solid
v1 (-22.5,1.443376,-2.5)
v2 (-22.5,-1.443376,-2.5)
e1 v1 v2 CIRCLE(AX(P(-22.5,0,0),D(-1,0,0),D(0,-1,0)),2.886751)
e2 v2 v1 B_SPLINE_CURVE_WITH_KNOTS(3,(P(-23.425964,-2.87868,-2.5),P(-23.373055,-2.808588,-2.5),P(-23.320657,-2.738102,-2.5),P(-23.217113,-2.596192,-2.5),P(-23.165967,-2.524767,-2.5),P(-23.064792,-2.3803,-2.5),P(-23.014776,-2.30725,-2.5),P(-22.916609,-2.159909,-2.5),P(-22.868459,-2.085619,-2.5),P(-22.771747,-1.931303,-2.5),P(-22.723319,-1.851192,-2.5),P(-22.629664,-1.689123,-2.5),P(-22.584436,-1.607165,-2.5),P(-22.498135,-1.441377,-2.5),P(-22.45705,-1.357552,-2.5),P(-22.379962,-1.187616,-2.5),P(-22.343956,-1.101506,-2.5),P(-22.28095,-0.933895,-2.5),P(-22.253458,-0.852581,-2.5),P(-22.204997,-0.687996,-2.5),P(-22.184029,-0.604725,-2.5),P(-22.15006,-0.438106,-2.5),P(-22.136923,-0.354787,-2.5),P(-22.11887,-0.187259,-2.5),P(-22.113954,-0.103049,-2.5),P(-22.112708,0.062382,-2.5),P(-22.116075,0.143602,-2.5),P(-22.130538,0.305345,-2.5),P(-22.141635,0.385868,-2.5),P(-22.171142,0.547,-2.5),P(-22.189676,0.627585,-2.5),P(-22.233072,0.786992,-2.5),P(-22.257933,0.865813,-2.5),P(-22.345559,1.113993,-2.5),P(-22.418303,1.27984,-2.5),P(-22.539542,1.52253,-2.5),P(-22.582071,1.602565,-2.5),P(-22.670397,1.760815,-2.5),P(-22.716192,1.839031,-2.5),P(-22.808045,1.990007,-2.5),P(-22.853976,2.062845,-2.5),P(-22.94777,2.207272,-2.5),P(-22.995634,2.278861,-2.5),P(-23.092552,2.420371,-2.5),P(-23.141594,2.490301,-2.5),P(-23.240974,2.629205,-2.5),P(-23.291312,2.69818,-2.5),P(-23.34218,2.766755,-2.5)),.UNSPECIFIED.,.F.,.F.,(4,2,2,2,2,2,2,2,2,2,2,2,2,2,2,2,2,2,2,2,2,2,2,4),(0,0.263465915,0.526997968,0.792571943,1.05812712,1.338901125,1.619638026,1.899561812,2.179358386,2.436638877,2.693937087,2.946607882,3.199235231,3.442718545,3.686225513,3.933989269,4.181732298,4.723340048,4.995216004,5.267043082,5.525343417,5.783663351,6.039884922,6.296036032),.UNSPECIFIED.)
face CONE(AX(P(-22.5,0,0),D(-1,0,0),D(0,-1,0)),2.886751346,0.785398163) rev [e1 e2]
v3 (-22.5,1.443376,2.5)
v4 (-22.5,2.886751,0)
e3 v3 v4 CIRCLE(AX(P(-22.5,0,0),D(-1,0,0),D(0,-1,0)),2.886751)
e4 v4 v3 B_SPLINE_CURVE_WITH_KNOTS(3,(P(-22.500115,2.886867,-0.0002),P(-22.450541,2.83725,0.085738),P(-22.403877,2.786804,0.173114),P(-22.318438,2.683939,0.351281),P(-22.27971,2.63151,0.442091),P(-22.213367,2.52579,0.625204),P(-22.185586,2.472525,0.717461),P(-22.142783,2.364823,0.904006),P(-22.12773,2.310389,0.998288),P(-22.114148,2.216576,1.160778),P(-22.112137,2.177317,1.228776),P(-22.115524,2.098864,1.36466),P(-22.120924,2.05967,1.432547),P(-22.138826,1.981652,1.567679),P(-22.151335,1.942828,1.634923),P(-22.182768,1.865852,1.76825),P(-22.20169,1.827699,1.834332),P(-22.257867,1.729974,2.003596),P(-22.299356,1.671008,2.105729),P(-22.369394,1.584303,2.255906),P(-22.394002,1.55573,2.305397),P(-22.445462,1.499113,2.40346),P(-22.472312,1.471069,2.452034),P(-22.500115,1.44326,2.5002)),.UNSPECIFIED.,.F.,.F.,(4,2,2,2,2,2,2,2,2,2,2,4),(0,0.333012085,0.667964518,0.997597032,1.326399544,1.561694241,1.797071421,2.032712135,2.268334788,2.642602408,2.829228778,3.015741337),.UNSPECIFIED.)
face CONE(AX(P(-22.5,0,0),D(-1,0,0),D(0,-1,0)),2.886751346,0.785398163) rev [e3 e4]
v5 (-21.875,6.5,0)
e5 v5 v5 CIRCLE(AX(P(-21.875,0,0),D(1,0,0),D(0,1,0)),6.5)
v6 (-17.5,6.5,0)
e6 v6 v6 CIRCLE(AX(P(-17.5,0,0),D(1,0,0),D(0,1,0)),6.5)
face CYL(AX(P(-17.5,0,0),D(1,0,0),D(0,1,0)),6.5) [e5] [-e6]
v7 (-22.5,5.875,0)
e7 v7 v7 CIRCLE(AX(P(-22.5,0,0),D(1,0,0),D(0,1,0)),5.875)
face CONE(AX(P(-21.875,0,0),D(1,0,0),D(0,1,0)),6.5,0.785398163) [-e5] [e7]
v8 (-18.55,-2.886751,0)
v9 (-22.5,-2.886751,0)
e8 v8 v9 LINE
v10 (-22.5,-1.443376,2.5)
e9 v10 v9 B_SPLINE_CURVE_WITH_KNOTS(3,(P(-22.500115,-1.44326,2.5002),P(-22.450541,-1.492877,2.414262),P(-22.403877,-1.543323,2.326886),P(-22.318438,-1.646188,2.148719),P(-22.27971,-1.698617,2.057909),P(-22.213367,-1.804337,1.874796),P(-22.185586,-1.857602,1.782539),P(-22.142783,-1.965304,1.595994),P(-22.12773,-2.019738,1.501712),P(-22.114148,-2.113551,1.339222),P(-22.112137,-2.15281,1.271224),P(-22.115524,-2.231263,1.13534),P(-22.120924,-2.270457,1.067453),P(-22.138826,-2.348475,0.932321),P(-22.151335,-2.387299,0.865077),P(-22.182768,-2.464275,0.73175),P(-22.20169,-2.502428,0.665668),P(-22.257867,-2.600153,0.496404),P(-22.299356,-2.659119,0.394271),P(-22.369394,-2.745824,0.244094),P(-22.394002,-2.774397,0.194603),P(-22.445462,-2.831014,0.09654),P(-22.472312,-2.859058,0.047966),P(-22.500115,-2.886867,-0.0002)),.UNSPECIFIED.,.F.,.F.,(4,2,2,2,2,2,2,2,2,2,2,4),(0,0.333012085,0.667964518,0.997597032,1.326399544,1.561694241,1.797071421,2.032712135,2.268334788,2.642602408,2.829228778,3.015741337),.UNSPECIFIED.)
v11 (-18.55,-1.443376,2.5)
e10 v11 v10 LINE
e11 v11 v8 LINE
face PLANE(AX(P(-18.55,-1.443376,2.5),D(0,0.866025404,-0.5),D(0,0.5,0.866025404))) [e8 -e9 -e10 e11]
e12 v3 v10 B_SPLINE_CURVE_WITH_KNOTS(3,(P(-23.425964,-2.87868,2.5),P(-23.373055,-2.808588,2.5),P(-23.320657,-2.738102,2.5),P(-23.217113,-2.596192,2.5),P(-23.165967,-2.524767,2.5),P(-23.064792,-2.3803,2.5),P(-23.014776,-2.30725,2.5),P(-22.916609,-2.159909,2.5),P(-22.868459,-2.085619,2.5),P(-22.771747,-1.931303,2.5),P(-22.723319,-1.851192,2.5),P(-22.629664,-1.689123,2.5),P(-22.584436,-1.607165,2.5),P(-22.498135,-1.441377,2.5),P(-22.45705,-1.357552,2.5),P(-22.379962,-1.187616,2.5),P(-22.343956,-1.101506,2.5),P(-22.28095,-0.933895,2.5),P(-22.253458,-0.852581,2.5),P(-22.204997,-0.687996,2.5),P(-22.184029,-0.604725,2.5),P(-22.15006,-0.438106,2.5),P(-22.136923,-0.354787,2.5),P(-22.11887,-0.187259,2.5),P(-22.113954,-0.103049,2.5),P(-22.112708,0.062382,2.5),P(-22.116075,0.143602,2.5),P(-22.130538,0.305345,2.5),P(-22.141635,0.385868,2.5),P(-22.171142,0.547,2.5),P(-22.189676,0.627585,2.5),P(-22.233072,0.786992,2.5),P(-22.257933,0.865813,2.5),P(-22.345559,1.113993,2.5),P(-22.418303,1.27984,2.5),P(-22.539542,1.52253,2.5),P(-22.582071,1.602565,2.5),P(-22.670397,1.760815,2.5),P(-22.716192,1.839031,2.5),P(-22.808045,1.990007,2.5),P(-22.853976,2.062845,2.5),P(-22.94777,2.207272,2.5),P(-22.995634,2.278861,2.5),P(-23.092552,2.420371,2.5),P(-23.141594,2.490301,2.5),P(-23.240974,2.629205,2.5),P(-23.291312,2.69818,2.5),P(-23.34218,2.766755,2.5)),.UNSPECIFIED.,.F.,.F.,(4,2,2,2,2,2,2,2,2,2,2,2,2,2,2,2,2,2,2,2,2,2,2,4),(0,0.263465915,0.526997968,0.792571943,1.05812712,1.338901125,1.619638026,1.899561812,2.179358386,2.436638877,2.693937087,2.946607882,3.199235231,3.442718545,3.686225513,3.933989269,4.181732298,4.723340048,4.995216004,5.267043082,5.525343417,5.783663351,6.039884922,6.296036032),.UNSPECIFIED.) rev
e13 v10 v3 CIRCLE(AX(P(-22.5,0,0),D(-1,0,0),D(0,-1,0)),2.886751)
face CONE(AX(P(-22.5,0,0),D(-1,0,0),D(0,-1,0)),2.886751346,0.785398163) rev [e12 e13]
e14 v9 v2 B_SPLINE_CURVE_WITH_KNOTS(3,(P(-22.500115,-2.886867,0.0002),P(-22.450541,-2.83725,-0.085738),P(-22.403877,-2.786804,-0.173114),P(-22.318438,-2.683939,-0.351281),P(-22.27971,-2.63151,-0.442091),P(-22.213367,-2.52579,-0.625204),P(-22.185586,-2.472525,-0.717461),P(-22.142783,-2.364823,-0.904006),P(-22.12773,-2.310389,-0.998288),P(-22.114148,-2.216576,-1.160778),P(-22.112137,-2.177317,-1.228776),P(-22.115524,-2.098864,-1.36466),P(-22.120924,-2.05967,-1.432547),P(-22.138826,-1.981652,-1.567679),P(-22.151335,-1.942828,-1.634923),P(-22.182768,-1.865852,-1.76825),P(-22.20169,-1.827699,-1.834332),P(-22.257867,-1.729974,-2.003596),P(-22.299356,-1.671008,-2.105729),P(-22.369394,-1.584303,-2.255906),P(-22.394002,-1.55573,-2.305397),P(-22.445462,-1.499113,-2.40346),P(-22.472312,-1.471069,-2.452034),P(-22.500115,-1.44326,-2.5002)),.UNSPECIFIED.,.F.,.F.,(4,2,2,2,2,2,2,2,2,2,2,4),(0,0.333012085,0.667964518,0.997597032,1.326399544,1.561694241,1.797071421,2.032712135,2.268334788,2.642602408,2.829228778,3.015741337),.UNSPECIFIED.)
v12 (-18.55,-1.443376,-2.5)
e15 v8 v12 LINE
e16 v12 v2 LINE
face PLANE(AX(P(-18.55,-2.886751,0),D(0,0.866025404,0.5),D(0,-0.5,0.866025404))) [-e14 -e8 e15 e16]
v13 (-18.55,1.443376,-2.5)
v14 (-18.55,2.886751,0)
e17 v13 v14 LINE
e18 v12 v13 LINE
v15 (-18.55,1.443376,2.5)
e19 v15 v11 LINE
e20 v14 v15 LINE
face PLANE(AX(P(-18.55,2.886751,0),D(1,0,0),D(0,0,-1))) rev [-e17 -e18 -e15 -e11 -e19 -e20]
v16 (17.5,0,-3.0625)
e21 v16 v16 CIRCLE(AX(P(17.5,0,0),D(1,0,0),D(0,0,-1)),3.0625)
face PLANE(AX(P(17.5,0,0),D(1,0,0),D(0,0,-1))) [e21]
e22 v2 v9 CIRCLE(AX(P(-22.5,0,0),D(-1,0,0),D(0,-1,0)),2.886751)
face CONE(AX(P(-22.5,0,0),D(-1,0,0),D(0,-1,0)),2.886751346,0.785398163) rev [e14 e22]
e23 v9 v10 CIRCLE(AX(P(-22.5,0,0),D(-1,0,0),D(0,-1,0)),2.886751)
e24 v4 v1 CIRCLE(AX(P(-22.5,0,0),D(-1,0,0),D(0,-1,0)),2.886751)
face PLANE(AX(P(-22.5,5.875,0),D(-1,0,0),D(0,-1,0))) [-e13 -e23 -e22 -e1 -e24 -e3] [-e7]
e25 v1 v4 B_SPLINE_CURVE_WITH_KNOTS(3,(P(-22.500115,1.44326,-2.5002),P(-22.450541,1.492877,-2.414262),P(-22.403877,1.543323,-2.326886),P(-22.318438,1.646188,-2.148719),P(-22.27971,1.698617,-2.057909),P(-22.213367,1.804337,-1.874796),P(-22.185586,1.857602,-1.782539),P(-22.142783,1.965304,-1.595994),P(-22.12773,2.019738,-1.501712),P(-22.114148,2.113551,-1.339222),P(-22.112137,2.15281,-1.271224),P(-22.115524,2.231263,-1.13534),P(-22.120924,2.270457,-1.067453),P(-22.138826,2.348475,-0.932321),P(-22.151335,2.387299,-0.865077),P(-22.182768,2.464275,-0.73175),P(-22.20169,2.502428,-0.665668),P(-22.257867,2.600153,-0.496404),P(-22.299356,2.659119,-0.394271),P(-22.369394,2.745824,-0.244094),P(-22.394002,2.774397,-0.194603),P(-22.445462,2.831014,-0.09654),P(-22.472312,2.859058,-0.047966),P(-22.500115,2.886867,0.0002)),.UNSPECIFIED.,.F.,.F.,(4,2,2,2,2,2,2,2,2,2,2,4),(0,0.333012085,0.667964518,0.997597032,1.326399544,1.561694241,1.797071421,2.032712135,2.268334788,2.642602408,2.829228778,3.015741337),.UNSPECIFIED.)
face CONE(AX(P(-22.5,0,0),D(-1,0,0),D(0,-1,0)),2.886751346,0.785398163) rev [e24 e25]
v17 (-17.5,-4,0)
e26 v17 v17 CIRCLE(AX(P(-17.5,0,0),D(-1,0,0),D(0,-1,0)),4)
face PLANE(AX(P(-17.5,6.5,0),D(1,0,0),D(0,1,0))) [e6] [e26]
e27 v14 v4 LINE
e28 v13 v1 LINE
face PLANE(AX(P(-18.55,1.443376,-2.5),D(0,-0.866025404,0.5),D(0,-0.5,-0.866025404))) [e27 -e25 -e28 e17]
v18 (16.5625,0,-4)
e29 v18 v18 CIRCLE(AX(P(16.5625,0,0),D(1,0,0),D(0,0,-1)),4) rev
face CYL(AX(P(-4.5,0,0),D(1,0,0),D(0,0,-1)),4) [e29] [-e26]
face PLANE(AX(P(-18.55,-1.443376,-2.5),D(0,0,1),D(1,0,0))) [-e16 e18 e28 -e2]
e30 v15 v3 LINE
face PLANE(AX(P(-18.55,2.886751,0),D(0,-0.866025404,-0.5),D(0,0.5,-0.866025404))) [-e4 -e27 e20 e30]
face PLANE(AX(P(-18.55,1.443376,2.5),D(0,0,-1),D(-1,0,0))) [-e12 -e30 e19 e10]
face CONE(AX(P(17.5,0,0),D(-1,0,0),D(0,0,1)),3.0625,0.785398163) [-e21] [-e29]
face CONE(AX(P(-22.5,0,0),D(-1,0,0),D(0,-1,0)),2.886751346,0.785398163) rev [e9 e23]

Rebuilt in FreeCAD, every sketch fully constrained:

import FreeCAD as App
import Part
import Sketcher

V = App.Vector
Q = App.Units.Quantity


def edges_at(feature, points):
    """Names of the edges that pass closest to the given points."""
    edges = feature.Shape.Edges
    near = lambda p: min(range(len(edges)), key=lambda i: edges[i].distToShape(Part.Vertex(*p))[0])
    return sorted({f"Edge{near(p) + 1}" for p in points})

doc = App.newDocument("Part")
params = doc.addObject("Spreadsheet::Sheet", "Params")
for row, (alias, value) in enumerate([
    ("sketch1_diameter", "8 mm"),
    ("pad1_length", "22 mm"),
    ("chamfer_size", "0.9375 mm"),
    ("sketch2_width", "13 mm"),
    ("sketch2_height", "4 mm"),
    ("revolution_angle", "360 deg"),
    ("sketch3_width", "5 mm"),
    ("sketch3_height", "6.5 mm"),
    ("revolution2_angle", "360 deg"),
    ("pocket1_length", "3.95 mm"),
    ("groove_angle", "360 deg"),
], start=1):
    params.set(f"A{row}", alias)
    params.set(f"B{row}", "=" + value)
    params.setAlias(f"B{row}", alias)

body = doc.addObject("PartDesign::Body", "Body")

sketch1 = body.newObject("Sketcher::SketchObject", "Sketch")
sketch1.AttachmentSupport = (doc.getObject("YZ_Plane"), [""])
sketch1.MapMode = "FlatFace"
sketch1.AttachmentOffset = App.Placement(V(0, 0, 17.5), App.Rotation())
sketch1.addGeometry(Part.Circle(V(0, 0, 0), V(0, 0, 1), 4), False)
sketch1.addConstraint([
    Sketcher.Constraint("Coincident", 0, 3, -1, 1),
    Sketcher.Constraint("Diameter", 0, Q("8 mm")),
])
sketch1.setExpression("Constraints[1]", "Params.sketch1_diameter")
pad1 = body.newObject("PartDesign::Pad", "Pad")
pad1.Profile = sketch1
pad1.setExpression("Length", "Params.pad1_length")
pad1.Reversed = True
doc.recompute()

chamfer = body.newObject("PartDesign::Chamfer", "Chamfer")
chamfer.Base = (pad1, edges_at(pad1, [(17.5, 0, 4)]))
chamfer.setExpression("Size", "Params.chamfer_size")

sketch2 = body.newObject("Sketcher::SketchObject", "Sketch001")
sketch2.AttachmentSupport = (doc.getObject("XY_Plane"), [""])
sketch2.MapMode = "FlatFace"
sketch2.addGeometry([
    Part.LineSegment(V(-2.190599, 0, 0), V(-4.5, 4, 0)),
    Part.LineSegment(V(-4.5, 4, 0), V(-17.5, 4, 0)),
    Part.LineSegment(V(-17.5, 4, 0), V(-17.5, 0, 0)),
    Part.LineSegment(V(-17.5, 0, 0), V(-2.190599, 0, 0)),
], False)
sketch2.addConstraint([
    Sketcher.Constraint("Coincident", 0, 2, 1, 1),
    Sketcher.Constraint("Coincident", 1, 2, 2, 1),
    Sketcher.Constraint("Coincident", 2, 2, 3, 1),
    Sketcher.Constraint("Coincident", 3, 2, 0, 1),
    Sketcher.Constraint("Horizontal", 1),
    Sketcher.Constraint("Vertical", 2),
    Sketcher.Constraint("Horizontal", 3),
    Sketcher.Constraint("PointOnObject", 2, 2, -1),
    Sketcher.Constraint("DistanceX", 1, 2, 1, 1, Q("13 mm")),
    Sketcher.Constraint("DistanceY", 2, 2, 2, 1, Q("4 mm")),
    Sketcher.Constraint("Angle", 0, Q("120 deg")),
    Sketcher.Constraint("DistanceX", 0, 2, -1, 1, Q("4.5 mm")),
])
sketch2.setExpression("Constraints[8]", "Params.sketch2_width")
sketch2.setExpression("Constraints[9]", "Params.sketch2_height")
revolution = body.newObject("PartDesign::Revolution", "Revolution")
revolution.Profile = sketch2
revolution.ReferenceAxis = (sketch2, ["H_Axis"])
revolution.setExpression("Angle", "Params.revolution_angle")

sketch3 = body.newObject("Sketcher::SketchObject", "Sketch002")
sketch3.AttachmentSupport = (doc.getObject("XY_Plane"), [""])
sketch3.MapMode = "FlatFace"
sketch3.addGeometry([
    Part.LineSegment(V(-21.875, 6.5, 0), V(-22.5, 5.875, 0)),
    Part.LineSegment(V(-22.5, 5.875, 0), V(-22.5, 0, 0)),
    Part.LineSegment(V(-22.5, 0, 0), V(-17.5, 0, 0)),
    Part.LineSegment(V(-17.5, 0, 0), V(-17.5, 6.5, 0)),
    Part.LineSegment(V(-17.5, 6.5, 0), V(-21.875, 6.5, 0)),
], False)
sketch3.addConstraint([
    Sketcher.Constraint("Coincident", 0, 2, 1, 1),
    Sketcher.Constraint("Coincident", 1, 2, 2, 1),
    Sketcher.Constraint("Coincident", 2, 2, 3, 1),
    Sketcher.Constraint("Coincident", 3, 2, 4, 1),
    Sketcher.Constraint("Coincident", 4, 2, 0, 1),
    Sketcher.Constraint("Vertical", 1),
    Sketcher.Constraint("Horizontal", 2),
    Sketcher.Constraint("Vertical", 3),
    Sketcher.Constraint("Horizontal", 4),
    Sketcher.Constraint("PointOnObject", 1, 2, -1),
    Sketcher.Constraint("DistanceX", 2, 1, 2, 2, Q("5 mm")),
    Sketcher.Constraint("Angle", 0, Q("-135 deg")),
    Sketcher.Constraint("DistanceY", 3, 1, 3, 2, Q("6.5 mm")),
    Sketcher.Constraint("DistanceX", 0, 2, -1, 1, Q("22.5 mm")),
    Sketcher.Constraint("DistanceX", 4, 2, 4, 1, Q("4.375 mm")),
])
sketch3.setExpression("Constraints[10]", "Params.sketch3_width")
sketch3.setExpression("Constraints[12]", "Params.sketch3_height")
revolution2 = body.newObject("PartDesign::Revolution", "Revolution001")
revolution2.Profile = sketch3
revolution2.ReferenceAxis = (sketch3, ["H_Axis"])
revolution2.setExpression("Angle", "Params.revolution2_angle")

sketch4 = body.newObject("Sketcher::SketchObject", "Sketch003")
sketch4.AttachmentSupport = (doc.getObject("YZ_Plane"), [""])
sketch4.MapMode = "FlatFace"
sketch4.AttachmentOffset = App.Placement(V(0, 0, -22.5), App.Rotation())
sketch4.addGeometry([
    Part.LineSegment(V(2.886751, 0, 0), V(1.443376, 2.5, 0)),
    Part.LineSegment(V(1.443376, 2.5, 0), V(-1.443376, 2.5, 0)),
    Part.LineSegment(V(-1.443376, 2.5, 0), V(-2.886751, 0, 0)),
    Part.LineSegment(V(-2.886751, 0, 0), V(-1.443376, -2.5, 0)),
    Part.LineSegment(V(-1.443376, -2.5, 0), V(1.443376, -2.5, 0)),
    Part.LineSegment(V(1.443376, -2.5, 0), V(2.886751, 0, 0)),
], False)
sketch4.addConstraint([
    Sketcher.Constraint("Coincident", 0, 2, 1, 1),
    Sketcher.Constraint("Coincident", 1, 2, 2, 1),
    Sketcher.Constraint("Coincident", 2, 2, 3, 1),
    Sketcher.Constraint("Coincident", 3, 2, 4, 1),
    Sketcher.Constraint("Coincident", 4, 2, 5, 1),
    Sketcher.Constraint("Coincident", 5, 2, 0, 1),
    Sketcher.Constraint("Horizontal", 1),
    Sketcher.Constraint("Horizontal", 4),
    Sketcher.Constraint("Symmetric", 0, 2, 3, 2, -1, 1),
    Sketcher.Constraint("Symmetric", 2, 2, 5, 2, -1, 1),
    Sketcher.Constraint("PointOnObject", 2, 2, -1),
    Sketcher.Constraint("Parallel", 2, 5),
    Sketcher.Constraint("Vertical", 1, 2, 3, 2),
    Sketcher.Constraint("Angle", 0, Q("120 deg")),
    Sketcher.Constraint("DistanceY", 3, 2, 1, 2, Q("5 mm")),
    Sketcher.Constraint("DistanceX", 1, 2, 1, 1, Q("2.886751 mm")),
])
pocket1 = body.newObject("PartDesign::Pocket", "Pocket")
pocket1.Profile = sketch4
pocket1.setExpression("Length", "Params.pocket1_length")
pocket1.Reversed = True

sketch5 = body.newObject("Sketcher::SketchObject", "Sketch004")
sketch5.AttachmentSupport = (doc.getObject("XZ_Plane"), [""])
sketch5.MapMode = "FlatFace"
sketch5.addGeometry([
    Part.LineSegment(V(-22.5, 0, 0), V(-22.5, 2.886751, 0)),
    Part.LineSegment(V(-22.5, 2.886751, 0), V(-19.613249, 0, 0)),
    Part.LineSegment(V(-19.613249, 0, 0), V(-22.5, 0, 0)),
], False)
sketch5.addConstraint([
    Sketcher.Constraint("Coincident", 0, 2, 1, 1),
    Sketcher.Constraint("Coincident", 1, 2, 2, 1),
    Sketcher.Constraint("Coincident", 2, 2, 0, 1),
    Sketcher.Constraint("Vertical", 0),
    Sketcher.Constraint("Horizontal", 2),
    Sketcher.Constraint("PointOnObject", 1, 2, -1),
    Sketcher.Constraint("Equal", 2, 0),
    Sketcher.Constraint("DistanceX", 0, 2, -1, 1, Q("22.5 mm")),
    Sketcher.Constraint("DistanceX", 2, 2, 2, 1, Q("2.886751 mm")),
])
groove = body.newObject("PartDesign::Groove", "Groove")
groove.Profile = sketch5
groove.ReferenceAxis = (sketch5, ["H_Axis"])
groove.setExpression("Angle", "Params.groove_angle")

doc.recompute()
